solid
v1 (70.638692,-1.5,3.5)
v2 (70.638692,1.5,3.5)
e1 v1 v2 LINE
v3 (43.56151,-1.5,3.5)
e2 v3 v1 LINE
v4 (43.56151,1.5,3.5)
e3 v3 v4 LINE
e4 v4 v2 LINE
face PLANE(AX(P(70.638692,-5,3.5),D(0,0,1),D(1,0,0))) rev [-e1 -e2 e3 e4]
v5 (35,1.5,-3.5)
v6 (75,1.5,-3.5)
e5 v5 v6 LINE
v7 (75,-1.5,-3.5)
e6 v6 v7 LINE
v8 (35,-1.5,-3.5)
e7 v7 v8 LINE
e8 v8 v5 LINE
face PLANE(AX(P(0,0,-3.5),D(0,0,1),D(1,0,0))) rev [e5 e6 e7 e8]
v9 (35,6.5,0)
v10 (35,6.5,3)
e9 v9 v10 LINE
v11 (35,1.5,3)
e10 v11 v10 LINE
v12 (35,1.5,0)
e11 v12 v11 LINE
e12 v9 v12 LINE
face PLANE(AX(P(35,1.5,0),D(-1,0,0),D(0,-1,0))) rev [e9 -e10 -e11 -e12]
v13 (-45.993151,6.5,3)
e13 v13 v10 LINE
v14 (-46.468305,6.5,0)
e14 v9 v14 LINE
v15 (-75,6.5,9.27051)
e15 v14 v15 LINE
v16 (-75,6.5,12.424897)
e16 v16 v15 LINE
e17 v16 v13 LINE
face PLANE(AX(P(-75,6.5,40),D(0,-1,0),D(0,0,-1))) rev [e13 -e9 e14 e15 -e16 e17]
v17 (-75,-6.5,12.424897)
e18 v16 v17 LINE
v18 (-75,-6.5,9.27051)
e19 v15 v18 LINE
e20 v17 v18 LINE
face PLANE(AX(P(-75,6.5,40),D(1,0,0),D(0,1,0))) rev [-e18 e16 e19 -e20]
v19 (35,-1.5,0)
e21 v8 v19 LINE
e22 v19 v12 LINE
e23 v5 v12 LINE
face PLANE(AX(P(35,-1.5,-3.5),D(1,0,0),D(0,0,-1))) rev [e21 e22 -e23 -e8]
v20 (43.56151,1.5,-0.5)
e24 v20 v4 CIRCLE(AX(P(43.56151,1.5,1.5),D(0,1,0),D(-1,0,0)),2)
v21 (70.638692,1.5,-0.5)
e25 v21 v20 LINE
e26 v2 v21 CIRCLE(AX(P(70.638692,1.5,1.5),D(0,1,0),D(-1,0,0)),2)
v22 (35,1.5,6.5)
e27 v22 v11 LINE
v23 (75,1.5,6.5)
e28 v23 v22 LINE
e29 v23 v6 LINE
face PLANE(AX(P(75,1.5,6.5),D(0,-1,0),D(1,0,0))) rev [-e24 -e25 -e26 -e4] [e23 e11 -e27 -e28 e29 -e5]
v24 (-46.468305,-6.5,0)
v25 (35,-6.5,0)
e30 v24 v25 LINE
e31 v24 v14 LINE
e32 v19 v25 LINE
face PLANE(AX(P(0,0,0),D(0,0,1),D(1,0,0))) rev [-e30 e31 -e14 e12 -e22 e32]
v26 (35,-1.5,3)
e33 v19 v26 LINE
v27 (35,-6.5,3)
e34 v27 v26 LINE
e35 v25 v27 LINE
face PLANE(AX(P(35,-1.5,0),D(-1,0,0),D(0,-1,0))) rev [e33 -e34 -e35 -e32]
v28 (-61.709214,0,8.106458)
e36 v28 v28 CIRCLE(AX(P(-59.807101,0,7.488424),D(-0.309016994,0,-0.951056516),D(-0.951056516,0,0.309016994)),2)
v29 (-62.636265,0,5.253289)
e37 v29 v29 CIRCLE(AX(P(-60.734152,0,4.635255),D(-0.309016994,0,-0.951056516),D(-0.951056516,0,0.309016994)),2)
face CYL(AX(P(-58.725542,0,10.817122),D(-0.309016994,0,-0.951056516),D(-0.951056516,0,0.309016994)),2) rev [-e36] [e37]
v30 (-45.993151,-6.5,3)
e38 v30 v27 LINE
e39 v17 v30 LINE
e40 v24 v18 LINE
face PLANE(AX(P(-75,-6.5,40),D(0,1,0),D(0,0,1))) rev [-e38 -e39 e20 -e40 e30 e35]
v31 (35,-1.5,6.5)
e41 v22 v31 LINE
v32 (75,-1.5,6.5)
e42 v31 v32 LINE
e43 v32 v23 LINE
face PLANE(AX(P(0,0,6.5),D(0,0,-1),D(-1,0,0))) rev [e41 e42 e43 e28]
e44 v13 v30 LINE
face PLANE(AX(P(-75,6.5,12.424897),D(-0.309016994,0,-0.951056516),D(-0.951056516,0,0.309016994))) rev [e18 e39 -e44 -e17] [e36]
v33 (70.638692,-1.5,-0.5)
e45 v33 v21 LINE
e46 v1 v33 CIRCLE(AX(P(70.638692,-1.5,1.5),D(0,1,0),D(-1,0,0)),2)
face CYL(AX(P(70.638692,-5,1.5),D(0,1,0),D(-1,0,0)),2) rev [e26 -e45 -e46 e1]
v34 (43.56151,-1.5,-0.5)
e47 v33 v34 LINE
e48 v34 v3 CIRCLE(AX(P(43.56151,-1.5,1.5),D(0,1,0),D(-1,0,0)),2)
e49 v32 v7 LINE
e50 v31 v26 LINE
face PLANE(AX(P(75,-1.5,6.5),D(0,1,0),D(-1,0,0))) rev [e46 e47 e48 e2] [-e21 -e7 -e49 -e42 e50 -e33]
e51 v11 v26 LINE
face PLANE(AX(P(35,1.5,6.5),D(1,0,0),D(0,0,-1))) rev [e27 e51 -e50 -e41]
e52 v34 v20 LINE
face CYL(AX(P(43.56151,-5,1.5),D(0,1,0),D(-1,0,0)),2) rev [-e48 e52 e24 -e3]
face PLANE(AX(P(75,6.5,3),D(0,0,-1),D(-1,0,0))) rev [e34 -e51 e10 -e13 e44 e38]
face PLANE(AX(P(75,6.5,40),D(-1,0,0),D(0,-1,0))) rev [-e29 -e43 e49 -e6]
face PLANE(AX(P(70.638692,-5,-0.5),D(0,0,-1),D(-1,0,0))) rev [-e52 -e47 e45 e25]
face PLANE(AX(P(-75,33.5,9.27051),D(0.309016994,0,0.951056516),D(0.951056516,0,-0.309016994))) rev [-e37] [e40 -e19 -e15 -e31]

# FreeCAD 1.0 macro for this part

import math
import FreeCAD as App
import Part
import Sketcher
Q = App.Units.Quantity

doc = App.newDocument("Part")
body = doc.addObject("PartDesign::Body", "Body")

# Sketch on XY plane
sketch1 = body.newObject("Sketcher::SketchObject", "Sketch")
sketch1.AttachmentSupport = (doc.getObject("XY_Plane"), [""])
sketch1.MapMode = "FlatFace"
sketch1.addGeometry(Part.LineSegment(App.Vector(-75, 6, 0), App.Vector(-75, -6, 0)), False)
sketch1.addGeometry(Part.LineSegment(App.Vector(-75, -6, 0), App.Vector(75, -6, 0)), False)
sketch1.addGeometry(Part.LineSegment(App.Vector(75, -6, 0), App.Vector(75, 6, 0)), False)
sketch1.addGeometry(Part.LineSegment(App.Vector(75, 6, 0), App.Vector(-75, 6, 0)), False)
sketch1.addConstraint(Sketcher.Constraint("Coincident", 0, 2, 1, 1))
sketch1.addConstraint(Sketcher.Constraint("Coincident", 1, 2, 2, 1))
sketch1.addConstraint(Sketcher.Constraint("Coincident", 2, 2, 3, 1))
sketch1.addConstraint(Sketcher.Constraint("Coincident", 3, 2, 0, 1))
sketch1.addConstraint(Sketcher.Constraint("Vertical", 0))
sketch1.addConstraint(Sketcher.Constraint("Horizontal", 1))
sketch1.addConstraint(Sketcher.Constraint("Vertical", 2))
sketch1.addConstraint(Sketcher.Constraint("Horizontal", 3))
sketch1.addConstraint(Sketcher.Constraint("Symmetric", 0, 2, 2, 2, -1, 1))
sketch1.addConstraint(Sketcher.Constraint("DistanceX", 1, 1, 1, 2, 150.0))
sketch1.addConstraint(Sketcher.Constraint("DistanceY", 0, 2, 0, 1, 13.0))
pad1 = body.newObject("PartDesign::Pad", "Pad")
pad1.Profile = sketch1
pad1.Length = 40

# Sketch on XZ plane
sketch2 = body.newObject("Sketcher::SketchObject", "Sketch001")
sketch2.AttachmentSupport = (doc.getObject("XZ_Plane"), [""])
sketch2.MapMode = "FlatFace"
sketch2.AttachmentOffset = App.Placement(App.Vector(0, 0, 6.5), App.Rotation())
sketch2.addGeometry(Part.LineSegment(App.Vector(-46, 0, 0), App.Vector(-75, 9, 0)), False)
sketch2.addGeometry(Part.LineSegment(App.Vector(-75, 9, 0), App.Vector(-75, 0, 0)), False)
sketch2.addGeometry(Part.LineSegment(App.Vector(-75, 0, 0), App.Vector(-46, 0, 0)), False)
sketch2.addConstraint(Sketcher.Constraint("Coincident", 0, 2, 1, 1))
sketch2.addConstraint(Sketcher.Constraint("Coincident", 1, 2, 2, 1))
sketch2.addConstraint(Sketcher.Constraint("Coincident", 2, 2, 0, 1))
sketch2.addConstraint(Sketcher.Constraint("Vertical", 1))
sketch2.addConstraint(Sketcher.Constraint("Horizontal", 2))
sketch2.addConstraint(Sketcher.Constraint("PointOnObject", 1, 2, -1))
sketch2.addConstraint(Sketcher.Constraint("Angle", 0, Q("162 deg")))
sketch2.addConstraint(Sketcher.Constraint("Distance", 0, 30.0))
sketch2.addConstraint(Sketcher.Constraint("DistanceX", 0, 2, -1, 1, 75.0))
pocket1 = body.newObject("PartDesign::Pocket", "Pocket")
pocket1.Profile = sketch2
pocket1.Length = 40

# Sketch on XZ plane
sketch3 = body.newObject("Sketcher::SketchObject", "Sketch002")
sketch3.AttachmentSupport = (doc.getObject("XZ_Plane"), [""])
sketch3.MapMode = "FlatFace"
sketch3.AttachmentOffset = App.Placement(App.Vector(0, 0, 6.5), App.Rotation())
sketch3.addGeometry(Part.LineSegment(App.Vector(-75, 12, 0), App.Vector(-46, 3, 0)), False)
sketch3.addGeometry(Part.LineSegment(App.Vector(-46, 3, 0), App.Vector(75, 3, 0)), False)
sketch3.addGeometry(Part.LineSegment(App.Vector(75, 3, 0), App.Vector(75, 40, 0)), False)
sketch3.addGeometry(Part.LineSegment(App.Vector(75, 40, 0), App.Vector(-75, 40, 0)), False)
sketch3.addGeometry(Part.LineSegment(App.Vector(-75, 40, 0), App.Vector(-75, 12, 0)), False)
sketch3.addConstraint(Sketcher.Constraint("Coincident", 0, 2, 1, 1))
sketch3.addConstraint(Sketcher.Constraint("Coincident", 1, 2, 2, 1))
sketch3.addConstraint(Sketcher.Constraint("Coincident", 2, 2, 3, 1))
sketch3.addConstraint(Sketcher.Constraint("Coincident", 3, 2, 4, 1))
sketch3.addConstraint(Sketcher.Constraint("Coincident", 4, 2, 0, 1))
sketch3.addConstraint(Sketcher.Constraint("Horizontal", 1))
sketch3.addConstraint(Sketcher.Constraint("Vertical", 2))
sketch3.addConstraint(Sketcher.Constraint("Horizontal", 3))
sketch3.addConstraint(Sketcher.Constraint("Vertical", 4))
sketch3.addConstraint(Sketcher.Constraint("DistanceX", 3, 2, 3, 1, 150.0))
sketch3.addConstraint(Sketcher.Constraint("DistanceY", 2, 1, 2, 2, 37.0))
sketch3.addConstraint(Sketcher.Constraint("Angle", 0, Q("-18 deg")))
sketch3.addConstraint(Sketcher.Constraint("DistanceY", -1, 1, 0, 2, 3.0))
sketch3.addConstraint(Sketcher.Constraint("DistanceX", -1, 1, 1, 2, 75.0))
sketch3.addConstraint(Sketcher.Constraint("DistanceX", 1, 1, 1, 2, 120.993151))
pocket2 = body.newObject("PartDesign::Pocket", "Pocket001")
pocket2.Profile = sketch3
pocket2.Type = "ThroughAll"

# Sketch on XY plane
sketch4 = body.newObject("Sketcher::SketchObject", "Sketch003")
sketch4.AttachmentSupport = (doc.getObject("XY_Plane"), [""])
sketch4.MapMode = "FlatFace"
sketch4.addGeometry(Part.LineSegment(App.Vector(35, 1.5, 0), App.Vector(35, -1.5, 0)), False)
sketch4.addGeometry(Part.LineSegment(App.Vector(35, -1.5, 0), App.Vector(75, -1.5, 0)), False)
sketch4.addGeometry(Part.LineSegment(App.Vector(75, -1.5, 0), App.Vector(75, 1.5, 0)), False)
sketch4.addGeometry(Part.LineSegment(App.Vector(75, 1.5, 0), App.Vector(35, 1.5, 0)), False)
sketch4.addConstraint(Sketcher.Constraint("Coincident", 0, 2, 1, 1))
sketch4.addConstraint(Sketcher.Constraint("Coincident", 1, 2, 2, 1))
sketch4.addConstraint(Sketcher.Constraint("Coincident", 2, 2, 3, 1))
sketch4.addConstraint(Sketcher.Constraint("Coincident", 3, 2, 0, 1))
sketch4.addConstraint(Sketcher.Constraint("Vertical", 0))
sketch4.addConstraint(Sketcher.Constraint("Horizontal", 1))
sketch4.addConstraint(Sketcher.Constraint("Vertical", 2))
sketch4.addConstraint(Sketcher.Constraint("Horizontal", 3))
sketch4.addConstraint(Sketcher.Constraint("DistanceX", 1, 1, 1, 2, 40.0))
sketch4.addConstraint(Sketcher.Constraint("DistanceY", 0, 2, 0, 1, 3.0))
sketch4.addConstraint(Sketcher.Constraint("DistanceX", -1, 1, 0, 2, 35.0))
sketch4.addConstraint(Sketcher.Constraint("DistanceY", 0, 2, -1, 1, 1.5))
pad2 = body.newObject("PartDesign::Pad", "Pad001")
pad2.Profile = sketch4
pad2.Length = 6.5

# Sketch on XY plane
sketch5 = body.newObject("Sketcher::SketchObject", "Sketch004")
sketch5.AttachmentSupport = (doc.getObject("XY_Plane"), [""])
sketch5.MapMode = "FlatFace"
sketch5.AttachmentOffset = App.Placement(App.Vector(0, 0, 3), App.Rotation())
sketch5.addGeometry(Part.LineSegment(App.Vector(35, -2, 0), App.Vector(35, -6, 0)), False)
sketch5.addGeometry(Part.LineSegment(App.Vector(35, -6, 0), App.Vector(75, -6, 0)), False)
sketch5.addGeometry(Part.LineSegment(App.Vector(75, -6, 0), App.Vector(75, -2, 0)), False)
sketch5.addGeometry(Part.LineSegment(App.Vector(75, -2, 0), App.Vector(35, -2, 0)), False)
sketch5.addGeometry(Part.LineSegment(App.Vector(35, 6, 0), App.Vector(35, 2, 0)), False)
sketch5.addGeometry(Part.LineSegment(App.Vector(35, 2, 0), App.Vector(75, 2, 0)), False)
sketch5.addGeometry(Part.LineSegment(App.Vector(75, 2, 0), App.Vector(75, 6, 0)), False)
sketch5.addGeometry(Part.LineSegment(App.Vector(75, 6, 0), App.Vector(35, 6, 0)), False)
sketch5.addConstraint(Sketcher.Constraint("Coincident", 0, 2, 1, 1))
sketch5.addConstraint(Sketcher.Constraint("Coincident", 1, 2, 2, 1))
sketch5.addConstraint(Sketcher.Constraint("Coincident", 2, 2, 3, 1))
sketch5.addConstraint(Sketcher.Constraint("Coincident", 3, 2, 0, 1))
sketch5.addConstraint(Sketcher.Constraint("Coincident", 4, 2, 5, 1))
sketch5.addConstraint(Sketcher.Constraint("Coincident", 5, 2, 6, 1))
sketch5.addConstraint(Sketcher.Constraint("Coincident", 6, 2, 7, 1))
sketch5.addConstraint(Sketcher.Constraint("Coincident", 7, 2, 4, 1))
sketch5.addConstraint(Sketcher.Constraint("Vertical", 0))
sketch5.addConstraint(Sketcher.Constraint("Horizontal", 1))
sketch5.addConstraint(Sketcher.Constraint("Vertical", 2))
sketch5.addConstraint(Sketcher.Constraint("Horizontal", 3))
sketch5.addConstraint(Sketcher.Constraint("Vertical", 4))
sketch5.addConstraint(Sketcher.Constraint("Horizontal", 5))
sketch5.addConstraint(Sketcher.Constraint("Vertical", 6))
sketch5.addConstraint(Sketcher.Constraint("Horizontal", 7))
sketch5.addConstraint(Sketcher.Constraint("Symmetric", 3, 2, 4, 2, -1))
sketch5.addConstraint(Sketcher.Constraint("Symmetric", 1, 2, 6, 2, -1))
sketch5.addConstraint(Sketcher.Constraint("DistanceX", 1, 1, 1, 2, 40.0))
sketch5.addConstraint(Sketcher.Constraint("DistanceY", 0, 2, 0, 1, 5.0))
sketch5.addConstraint(Sketcher.Constraint("DistanceX", -1, 1, 0, 2, 35.0))
sketch5.addConstraint(Sketcher.Constraint("DistanceY", 3, 2, 4, 2, 3.0))
pocket3 = body.newObject("PartDesign::Pocket", "Pocket002")
pocket3.Profile = sketch5
pocket3.Type = "ThroughAll"
pocket3.Midplane = True

# Sketch on XY plane
sketch6 = body.newObject("Sketcher::SketchObject", "Sketch005")
sketch6.AttachmentSupport = (doc.getObject("XY_Plane"), [""])
sketch6.MapMode = "FlatFace"
sketch6.addGeometry(Part.LineSegment(App.Vector(75, 1.5, 0), App.Vector(75, -1.5, 0)), False)
sketch6.addGeometry(Part.LineSegment(App.Vector(75, -1.5, 0), App.Vector(35, -1.5, 0)), False)
sketch6.addGeometry(Part.LineSegment(App.Vector(35, -1.5, 0), App.Vector(35, 1.5, 0)), False)
sketch6.addGeometry(Part.LineSegment(App.Vector(35, 1.5, 0), App.Vector(75, 1.5, 0)), False)
sketch6.addConstraint(Sketcher.Constraint("Coincident", 0, 2, 1, 1))
sketch6.addConstraint(Sketcher.Constraint("Coincident", 1, 2, 2, 1))
sketch6.addConstraint(Sketcher.Constraint("Coincident", 2, 2, 3, 1))
sketch6.addConstraint(Sketcher.Constraint("Coincident", 3, 2, 0, 1))
sketch6.addConstraint(Sketcher.Constraint("Vertical", 0))
sketch6.addConstraint(Sketcher.Constraint("Horizontal", 1))
sketch6.addConstraint(Sketcher.Constraint("Vertical", 2))
sketch6.addConstraint(Sketcher.Constraint("Horizontal", 3))
sketch6.addConstraint(Sketcher.Constraint("DistanceX", 1, 2, 1, 1, 40.0))
sketch6.addConstraint(Sketcher.Constraint("DistanceY", 0, 2, 0, 1, 3.0))
sketch6.addConstraint(Sketcher.Constraint("DistanceX", -1, 1, 0, 2, 75.0))
sketch6.addConstraint(Sketcher.Constraint("DistanceY", 0, 2, -1, 1, 1.5))
pad3 = body.newObject("PartDesign::Pad", "Pad002")
pad3.Profile = sketch6
pad3.Length = 3.5
pad3.Reversed = True

# Sketch on XZ plane
sketch7 = body.newObject("Sketcher::SketchObject", "Sketch006")
sketch7.AttachmentSupport = (doc.getObject("XZ_Plane"), [""])
sketch7.MapMode = "FlatFace"
sketch7.AttachmentOffset = App.Placement(App.Vector(0, 0, -1.5), App.Rotation())
sketch7.addGeometry(Part.LineSegment(App.Vector(43.6, 3.5, 0), App.Vector(70.6, 3.5, 0)), False)
sketch7.addGeometry(Part.ArcOfCircle(Part.Circle(App.Vector(70.6, 1.5, 0), App.Vector(0, 0, 1), 2), math.radians(-90), math.radians(90)), False)
sketch7.addGeometry(Part.LineSegment(App.Vector(70.6, -0.5, 0), App.Vector(43.6, -0.5, 0)), False)
sketch7.addGeometry(Part.ArcOfCircle(Part.Circle(App.Vector(43.6, 1.5, 0), App.Vector(0, 0, 1), 2), math.radians(90), math.radians(270)), False)
sketch7.addConstraint(Sketcher.Constraint("Tangent", 0, 2, 1, 2))
sketch7.addConstraint(Sketcher.Constraint("Tangent", 1, 1, 2, 1))
sketch7.addConstraint(Sketcher.Constraint("Tangent", 2, 2, 3, 2))
sketch7.addConstraint(Sketcher.Constraint("Tangent", 3, 1, 0, 1))
sketch7.addConstraint(Sketcher.Constraint("Horizontal", 0))
sketch7.addConstraint(Sketcher.Constraint("Horizontal", 2))
sketch7.addConstraint(Sketcher.Constraint("Radius", 1, 2.0))
sketch7.addConstraint(Sketcher.Constraint("DistanceY", -1, 1, 1, 3, 1.5))
sketch7.addConstraint(Sketcher.Constraint("DistanceX", 0, 1, 0, 2, 27.077182))
sketch7.addConstraint(Sketcher.Constraint("DistanceX", -1, 1, 1, 3, 70.638692))
pocket4 = body.newObject("PartDesign::Pocket", "Pocket003")
pocket4.Profile = sketch7
pocket4.Length = 6.5
pocket4.Reversed = True

# Sketch on an angled plane
sketch8 = body.newObject("Sketcher::SketchObject", "Sketch007")
sketch8.Placement = App.Placement(App.Vector(-4.437328, 0, -13.656692), App.Rotation(App.Vector(-0.951056516, 0, 0.309016994), App.Vector(0, 0.999999999, 0), App.Vector(-0.309016994, 0, -0.951056516), "ZXY"))
sketch8.addGeometry(Part.Circle(App.Vector(59.2, 0, 0), App.Vector(0, 0, 1), 2), False)
sketch8.addConstraint(Sketcher.Constraint("PointOnObject", 0, 3, -1))
sketch8.addConstraint(Sketcher.Constraint("Diameter", 0, 4.0))
sketch8.addConstraint(Sketcher.Constraint("DistanceX", -1, 1, 0, 3, 59.193984))
pocket5 = body.newObject("PartDesign::Pocket", "Pocket004")
pocket5.Profile = sketch8
pocket5.Length = 6.5

doc.recompute()
